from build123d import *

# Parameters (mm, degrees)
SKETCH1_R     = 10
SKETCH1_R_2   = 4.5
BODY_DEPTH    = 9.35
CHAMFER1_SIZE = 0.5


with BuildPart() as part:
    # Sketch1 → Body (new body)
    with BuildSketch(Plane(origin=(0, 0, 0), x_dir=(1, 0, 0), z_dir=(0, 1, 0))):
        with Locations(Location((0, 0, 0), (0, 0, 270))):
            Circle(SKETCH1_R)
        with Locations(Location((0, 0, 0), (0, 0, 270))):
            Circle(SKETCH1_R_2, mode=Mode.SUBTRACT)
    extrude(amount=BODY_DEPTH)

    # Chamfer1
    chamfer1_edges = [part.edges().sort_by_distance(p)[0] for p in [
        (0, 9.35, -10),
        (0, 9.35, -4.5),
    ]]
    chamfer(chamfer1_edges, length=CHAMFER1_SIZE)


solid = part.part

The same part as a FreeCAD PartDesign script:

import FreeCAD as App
import Part
import Sketcher

V = App.Vector


def edges_at(feature, points):
    """Names of the edges that pass closest to the given points."""
    edges = feature.Shape.Edges
    near = lambda p: min(range(len(edges)), key=lambda i: edges[i].distToShape(Part.Vertex(*p))[0])
    return sorted({f"Edge{near(p) + 1}" for p in points})

doc = App.newDocument("Part")
body = doc.addObject("PartDesign::Body", "Body")

# Sketch on XZ plane
sketch1 = body.newObject("Sketcher::SketchObject", "Sketch")
sketch1.AttachmentSupport = (doc.getObject("XZ_Plane"), [""])
sketch1.MapMode = "FlatFace"
sketch1.addGeometry([
    Part.Circle(V(0, 0, 0), V(0, 0, 1), 10),
    Part.Circle(V(0, 0, 0), V(0, 0, 1), 4.5),
], False)
sketch1.addConstraint([
    Sketcher.Constraint("Coincident", 0, 3, -1, 1),
    Sketcher.Constraint("Coincident", 1, 3, -1, 1),
    Sketcher.Constraint("Diameter", 0, 20.0),
    Sketcher.Constraint("Diameter", 1, 9.0),
])
pad1 = body.newObject("PartDesign::Pad", "Pad")
pad1.Profile = sketch1
pad1.Length = 9.35
pad1.Reversed = True
doc.recompute()

chamfer = body.newObject("PartDesign::Chamfer", "Chamfer")
chamfer.Base = (pad1, edges_at(pad1, [(0, 9.35, -10), (0, 9.35, -4.5)]))
chamfer.Size = 0.5

doc.recompute()
